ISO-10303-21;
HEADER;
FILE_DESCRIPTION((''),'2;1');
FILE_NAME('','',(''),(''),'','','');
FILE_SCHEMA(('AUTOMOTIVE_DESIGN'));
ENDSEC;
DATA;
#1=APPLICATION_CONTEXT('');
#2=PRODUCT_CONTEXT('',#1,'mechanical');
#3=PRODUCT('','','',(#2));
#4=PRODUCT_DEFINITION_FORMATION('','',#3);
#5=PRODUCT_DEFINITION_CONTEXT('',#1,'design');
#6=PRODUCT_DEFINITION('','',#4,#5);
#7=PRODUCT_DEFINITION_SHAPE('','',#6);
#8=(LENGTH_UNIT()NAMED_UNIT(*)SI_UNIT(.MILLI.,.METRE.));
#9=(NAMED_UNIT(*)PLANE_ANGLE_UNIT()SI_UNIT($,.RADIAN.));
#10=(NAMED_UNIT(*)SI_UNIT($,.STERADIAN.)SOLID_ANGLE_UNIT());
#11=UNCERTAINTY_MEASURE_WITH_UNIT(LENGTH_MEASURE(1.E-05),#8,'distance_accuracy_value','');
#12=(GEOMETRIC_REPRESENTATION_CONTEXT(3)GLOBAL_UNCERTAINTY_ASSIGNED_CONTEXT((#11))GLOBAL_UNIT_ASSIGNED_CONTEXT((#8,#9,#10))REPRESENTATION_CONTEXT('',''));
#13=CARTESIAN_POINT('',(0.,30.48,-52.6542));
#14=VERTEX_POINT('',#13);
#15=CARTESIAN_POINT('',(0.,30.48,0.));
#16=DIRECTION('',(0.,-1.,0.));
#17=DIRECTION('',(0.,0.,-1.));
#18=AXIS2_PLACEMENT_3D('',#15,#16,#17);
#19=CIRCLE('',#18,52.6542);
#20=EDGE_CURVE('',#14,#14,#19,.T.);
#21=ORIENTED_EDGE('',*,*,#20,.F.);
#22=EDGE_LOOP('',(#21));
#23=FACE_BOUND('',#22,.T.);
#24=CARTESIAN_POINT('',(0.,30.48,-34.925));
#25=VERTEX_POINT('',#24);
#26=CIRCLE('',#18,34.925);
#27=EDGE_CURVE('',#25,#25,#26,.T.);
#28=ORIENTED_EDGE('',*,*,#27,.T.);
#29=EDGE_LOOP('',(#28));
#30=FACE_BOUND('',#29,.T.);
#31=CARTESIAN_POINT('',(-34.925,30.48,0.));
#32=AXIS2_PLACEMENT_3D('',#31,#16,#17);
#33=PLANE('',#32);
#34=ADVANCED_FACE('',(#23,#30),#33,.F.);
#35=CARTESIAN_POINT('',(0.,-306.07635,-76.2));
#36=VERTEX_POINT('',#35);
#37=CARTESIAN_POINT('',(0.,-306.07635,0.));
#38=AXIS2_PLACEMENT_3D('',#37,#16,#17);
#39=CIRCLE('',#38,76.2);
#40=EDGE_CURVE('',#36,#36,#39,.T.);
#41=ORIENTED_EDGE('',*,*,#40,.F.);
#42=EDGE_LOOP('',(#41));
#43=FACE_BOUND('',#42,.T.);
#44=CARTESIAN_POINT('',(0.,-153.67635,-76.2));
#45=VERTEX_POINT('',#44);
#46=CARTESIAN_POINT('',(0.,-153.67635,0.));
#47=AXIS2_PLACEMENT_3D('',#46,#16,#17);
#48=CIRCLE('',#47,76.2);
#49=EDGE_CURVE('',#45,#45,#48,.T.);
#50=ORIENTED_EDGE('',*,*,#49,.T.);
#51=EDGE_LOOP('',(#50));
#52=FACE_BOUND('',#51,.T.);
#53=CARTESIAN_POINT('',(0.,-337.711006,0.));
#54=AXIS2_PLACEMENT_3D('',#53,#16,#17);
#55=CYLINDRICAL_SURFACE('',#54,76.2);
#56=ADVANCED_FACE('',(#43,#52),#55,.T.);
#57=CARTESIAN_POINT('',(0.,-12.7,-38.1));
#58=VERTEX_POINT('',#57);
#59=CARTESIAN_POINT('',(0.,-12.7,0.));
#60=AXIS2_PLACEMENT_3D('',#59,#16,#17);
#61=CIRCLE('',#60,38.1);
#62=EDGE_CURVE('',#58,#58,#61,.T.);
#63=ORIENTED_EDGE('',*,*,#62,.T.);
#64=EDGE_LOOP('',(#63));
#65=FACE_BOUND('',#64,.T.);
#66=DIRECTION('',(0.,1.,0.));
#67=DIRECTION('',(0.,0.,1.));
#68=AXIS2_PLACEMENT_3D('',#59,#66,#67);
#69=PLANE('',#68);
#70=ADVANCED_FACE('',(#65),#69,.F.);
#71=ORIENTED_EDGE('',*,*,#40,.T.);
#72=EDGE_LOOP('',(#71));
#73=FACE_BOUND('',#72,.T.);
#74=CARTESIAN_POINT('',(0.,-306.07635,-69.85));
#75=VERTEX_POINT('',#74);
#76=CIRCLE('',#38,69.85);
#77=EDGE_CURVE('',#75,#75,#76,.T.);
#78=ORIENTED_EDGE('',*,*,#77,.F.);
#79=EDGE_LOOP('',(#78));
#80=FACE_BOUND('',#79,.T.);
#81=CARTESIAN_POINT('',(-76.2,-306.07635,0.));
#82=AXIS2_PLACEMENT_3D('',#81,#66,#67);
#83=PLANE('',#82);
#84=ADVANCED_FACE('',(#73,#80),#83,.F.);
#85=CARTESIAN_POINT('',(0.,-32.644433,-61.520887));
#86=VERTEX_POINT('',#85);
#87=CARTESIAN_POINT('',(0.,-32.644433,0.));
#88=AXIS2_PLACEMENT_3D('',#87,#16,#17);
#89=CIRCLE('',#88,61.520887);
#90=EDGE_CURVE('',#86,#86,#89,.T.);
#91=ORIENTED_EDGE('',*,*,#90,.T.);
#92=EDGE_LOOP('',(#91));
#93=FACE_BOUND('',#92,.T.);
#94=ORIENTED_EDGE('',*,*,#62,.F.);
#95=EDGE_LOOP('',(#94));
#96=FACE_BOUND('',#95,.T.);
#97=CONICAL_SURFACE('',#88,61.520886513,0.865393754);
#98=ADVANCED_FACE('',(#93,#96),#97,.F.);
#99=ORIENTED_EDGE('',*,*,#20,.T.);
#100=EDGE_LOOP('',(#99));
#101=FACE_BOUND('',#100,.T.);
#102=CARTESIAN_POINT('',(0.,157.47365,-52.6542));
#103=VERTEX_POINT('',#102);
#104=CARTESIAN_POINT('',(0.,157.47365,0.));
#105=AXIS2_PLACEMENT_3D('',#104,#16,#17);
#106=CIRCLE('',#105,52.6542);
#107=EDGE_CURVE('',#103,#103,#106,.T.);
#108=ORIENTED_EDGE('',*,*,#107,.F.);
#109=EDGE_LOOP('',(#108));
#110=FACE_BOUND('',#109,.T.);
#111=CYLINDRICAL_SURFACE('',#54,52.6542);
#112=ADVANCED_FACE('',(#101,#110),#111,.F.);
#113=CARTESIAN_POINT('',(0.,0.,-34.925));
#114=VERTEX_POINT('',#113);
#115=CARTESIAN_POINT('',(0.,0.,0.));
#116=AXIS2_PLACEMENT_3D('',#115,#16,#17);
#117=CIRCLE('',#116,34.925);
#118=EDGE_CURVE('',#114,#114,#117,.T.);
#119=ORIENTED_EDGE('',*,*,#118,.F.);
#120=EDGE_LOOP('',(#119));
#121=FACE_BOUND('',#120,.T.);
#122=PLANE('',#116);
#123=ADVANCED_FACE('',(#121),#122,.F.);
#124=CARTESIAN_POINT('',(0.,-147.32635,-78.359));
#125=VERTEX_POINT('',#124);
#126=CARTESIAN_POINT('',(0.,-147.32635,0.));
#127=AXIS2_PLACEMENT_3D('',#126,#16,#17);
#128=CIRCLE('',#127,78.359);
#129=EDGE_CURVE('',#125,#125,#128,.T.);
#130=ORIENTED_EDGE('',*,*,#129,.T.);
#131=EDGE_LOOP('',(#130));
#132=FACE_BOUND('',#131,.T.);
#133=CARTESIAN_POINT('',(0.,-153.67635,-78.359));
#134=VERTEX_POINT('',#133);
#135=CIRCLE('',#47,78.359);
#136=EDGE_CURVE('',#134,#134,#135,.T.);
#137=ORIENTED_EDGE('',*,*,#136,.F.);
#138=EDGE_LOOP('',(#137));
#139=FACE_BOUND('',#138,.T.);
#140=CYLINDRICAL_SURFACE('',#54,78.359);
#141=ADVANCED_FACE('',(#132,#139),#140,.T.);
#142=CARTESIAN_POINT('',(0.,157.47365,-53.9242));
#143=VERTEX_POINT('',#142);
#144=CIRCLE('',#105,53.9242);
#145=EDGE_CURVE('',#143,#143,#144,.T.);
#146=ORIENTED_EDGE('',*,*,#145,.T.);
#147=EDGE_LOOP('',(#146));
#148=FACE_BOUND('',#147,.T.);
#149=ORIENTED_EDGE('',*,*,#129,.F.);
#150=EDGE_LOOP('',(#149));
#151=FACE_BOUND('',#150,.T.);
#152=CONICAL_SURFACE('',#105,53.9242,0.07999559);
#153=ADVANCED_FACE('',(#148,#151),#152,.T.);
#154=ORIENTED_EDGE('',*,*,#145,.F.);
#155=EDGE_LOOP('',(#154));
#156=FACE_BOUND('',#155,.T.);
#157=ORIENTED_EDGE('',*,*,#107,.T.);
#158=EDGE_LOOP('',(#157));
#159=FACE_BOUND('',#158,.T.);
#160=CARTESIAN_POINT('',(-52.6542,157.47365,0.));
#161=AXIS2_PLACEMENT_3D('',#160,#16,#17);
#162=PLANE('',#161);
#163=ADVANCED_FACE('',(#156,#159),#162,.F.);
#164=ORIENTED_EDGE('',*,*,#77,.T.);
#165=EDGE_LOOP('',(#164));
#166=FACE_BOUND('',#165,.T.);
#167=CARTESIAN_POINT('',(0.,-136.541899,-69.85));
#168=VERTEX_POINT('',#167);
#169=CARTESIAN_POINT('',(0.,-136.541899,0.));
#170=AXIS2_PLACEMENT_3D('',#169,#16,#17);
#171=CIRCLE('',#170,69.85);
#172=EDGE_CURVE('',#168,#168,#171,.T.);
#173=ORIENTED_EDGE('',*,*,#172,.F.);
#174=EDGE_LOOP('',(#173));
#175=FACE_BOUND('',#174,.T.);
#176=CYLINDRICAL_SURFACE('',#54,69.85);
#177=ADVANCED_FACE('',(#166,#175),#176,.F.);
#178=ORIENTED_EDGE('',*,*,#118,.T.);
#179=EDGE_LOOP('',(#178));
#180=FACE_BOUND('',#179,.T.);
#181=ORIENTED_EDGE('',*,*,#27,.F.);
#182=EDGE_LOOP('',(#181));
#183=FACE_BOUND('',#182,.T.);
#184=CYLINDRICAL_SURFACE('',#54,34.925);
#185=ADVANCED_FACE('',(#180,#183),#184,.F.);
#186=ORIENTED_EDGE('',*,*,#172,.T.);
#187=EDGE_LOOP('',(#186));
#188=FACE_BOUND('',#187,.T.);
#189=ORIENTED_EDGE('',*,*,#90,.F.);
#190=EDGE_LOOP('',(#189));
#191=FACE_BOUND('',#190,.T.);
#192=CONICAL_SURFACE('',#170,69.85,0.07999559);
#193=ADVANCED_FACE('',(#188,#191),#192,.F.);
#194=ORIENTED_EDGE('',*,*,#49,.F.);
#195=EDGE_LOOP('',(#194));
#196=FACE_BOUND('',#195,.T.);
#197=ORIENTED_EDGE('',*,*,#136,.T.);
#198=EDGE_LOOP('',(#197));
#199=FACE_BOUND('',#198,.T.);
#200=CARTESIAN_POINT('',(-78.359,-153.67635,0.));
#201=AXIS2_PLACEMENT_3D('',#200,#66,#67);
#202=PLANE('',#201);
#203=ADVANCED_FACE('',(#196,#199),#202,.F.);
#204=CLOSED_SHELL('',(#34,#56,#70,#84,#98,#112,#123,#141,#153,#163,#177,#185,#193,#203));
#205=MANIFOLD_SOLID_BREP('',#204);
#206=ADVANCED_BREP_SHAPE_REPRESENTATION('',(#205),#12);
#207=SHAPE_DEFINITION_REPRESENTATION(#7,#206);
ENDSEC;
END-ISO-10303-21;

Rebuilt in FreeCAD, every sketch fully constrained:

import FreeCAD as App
import Part
import Sketcher
Q = App.Units.Quantity


def add_polygon(sketch, points):
    """Adds a closed chain of lines whose ends are joined by coincident constraints."""
    first, n = sketch.GeometryCount, len(points)
    for a, b in zip(points, points[1:] + points[:1]):
        sketch.addGeometry(Part.LineSegment(App.Vector(*a, 0), App.Vector(*b, 0)), False)
    for i in range(n):
        sketch.addConstraint(Sketcher.Constraint("Coincident", first + i, 2, first + (i + 1) % n, 1))

doc = App.newDocument("Part")
body = doc.addObject("PartDesign::Body", "Body")

# Sketch on XY plane
sketch1 = body.newObject("Sketcher::SketchObject", "Sketch")
sketch1.AttachmentSupport = (doc.getObject("XY_Plane"), [""])
sketch1.MapMode = "FlatFace"
add_polygon(sketch1, [(0, 0), (-34.9, 0), (-34.9, 30.5), (-52.7, 30.5), (-52.7, 157.5), (-53.9, 157.5), (-78.4, -147.3), (-78.4, -153.7), (-76.2, -153.7), (-76.2, -306.1), (-69.8, -306.1), (-69.8, -136.5), (-61.5, -32.6), (-38.1, -12.7), (0, -12.7)])  # lines 0-14
sketch1.addConstraint(Sketcher.Constraint("Horizontal", 0))
sketch1.addConstraint(Sketcher.Constraint("Vertical", 1))
sketch1.addConstraint(Sketcher.Constraint("Horizontal", 2))
sketch1.addConstraint(Sketcher.Constraint("Vertical", 3))
sketch1.addConstraint(Sketcher.Constraint("Horizontal", 4))
sketch1.addConstraint(Sketcher.Constraint("Vertical", 6))
sketch1.addConstraint(Sketcher.Constraint("Horizontal", 7))
sketch1.addConstraint(Sketcher.Constraint("Vertical", 8))
sketch1.addConstraint(Sketcher.Constraint("Horizontal", 9))
sketch1.addConstraint(Sketcher.Constraint("Vertical", 10))
sketch1.addConstraint(Sketcher.Constraint("Horizontal", 13))
sketch1.addConstraint(Sketcher.Constraint("Vertical", 14))
sketch1.addConstraint(Sketcher.Constraint("Coincident", 14, 2, -1, 1))
sketch1.addConstraint(Sketcher.Constraint("Parallel", 5, 11))
sketch1.addConstraint(Sketcher.Constraint("Equal", 9, 6))
sketch1.addConstraint(Sketcher.Constraint("DistanceY", 8, 2, 8, 1, Q("6 in")))
sketch1.addConstraint(Sketcher.Constraint("DistanceX", 13, 1, 13, 2, Q("1.5 in")))
sketch1.addConstraint(Sketcher.Constraint("DistanceY", 1, 1, 1, 2, Q("1.2 in")))
sketch1.addConstraint(Sketcher.Constraint("DistanceY", 14, 1, 14, 2, Q("0.5 in")))
sketch1.addConstraint(Sketcher.Constraint("DistanceX", 7, 2, -1, 1, Q("3 in")))
sketch1.addConstraint(Sketcher.Constraint("DistanceY", 5, 2, 4, 2, Q("12 in")))
sketch1.addConstraint(Sketcher.Constraint("DistanceX", 4, 2, 4, 1, Q("0.05 in")))
sketch1.addConstraint(Sketcher.Constraint("DistanceX", 9, 1, 9, 2, Q("0.25 in")))
sketch1.addConstraint(Sketcher.Constraint("DistanceX", 0, 2, 0, 1, Q("1.375 in")))
sketch1.addConstraint(Sketcher.Constraint("DistanceX", 2, 2, 2, 1, Q("0.698 in")))
sketch1.addConstraint(Sketcher.Constraint("DistanceX", 7, 1, 7, 2, Q("0.085 in")))
sketch1.addConstraint(Sketcher.Constraint("DistanceY", 3, 1, 3, 2, 126.99365))
sketch1.addConstraint(Sketcher.Constraint("DistanceY", 10, 1, 10, 2, 169.534451))
sketch1.addConstraint(Sketcher.Constraint("Distance", 11, 104.230789))
revolution = body.newObject("PartDesign::Revolution", "Revolution")
revolution.Profile = sketch1
revolution.ReferenceAxis = (sketch1, ["V_Axis"])
revolution.Angle = 360

doc.recompute()
